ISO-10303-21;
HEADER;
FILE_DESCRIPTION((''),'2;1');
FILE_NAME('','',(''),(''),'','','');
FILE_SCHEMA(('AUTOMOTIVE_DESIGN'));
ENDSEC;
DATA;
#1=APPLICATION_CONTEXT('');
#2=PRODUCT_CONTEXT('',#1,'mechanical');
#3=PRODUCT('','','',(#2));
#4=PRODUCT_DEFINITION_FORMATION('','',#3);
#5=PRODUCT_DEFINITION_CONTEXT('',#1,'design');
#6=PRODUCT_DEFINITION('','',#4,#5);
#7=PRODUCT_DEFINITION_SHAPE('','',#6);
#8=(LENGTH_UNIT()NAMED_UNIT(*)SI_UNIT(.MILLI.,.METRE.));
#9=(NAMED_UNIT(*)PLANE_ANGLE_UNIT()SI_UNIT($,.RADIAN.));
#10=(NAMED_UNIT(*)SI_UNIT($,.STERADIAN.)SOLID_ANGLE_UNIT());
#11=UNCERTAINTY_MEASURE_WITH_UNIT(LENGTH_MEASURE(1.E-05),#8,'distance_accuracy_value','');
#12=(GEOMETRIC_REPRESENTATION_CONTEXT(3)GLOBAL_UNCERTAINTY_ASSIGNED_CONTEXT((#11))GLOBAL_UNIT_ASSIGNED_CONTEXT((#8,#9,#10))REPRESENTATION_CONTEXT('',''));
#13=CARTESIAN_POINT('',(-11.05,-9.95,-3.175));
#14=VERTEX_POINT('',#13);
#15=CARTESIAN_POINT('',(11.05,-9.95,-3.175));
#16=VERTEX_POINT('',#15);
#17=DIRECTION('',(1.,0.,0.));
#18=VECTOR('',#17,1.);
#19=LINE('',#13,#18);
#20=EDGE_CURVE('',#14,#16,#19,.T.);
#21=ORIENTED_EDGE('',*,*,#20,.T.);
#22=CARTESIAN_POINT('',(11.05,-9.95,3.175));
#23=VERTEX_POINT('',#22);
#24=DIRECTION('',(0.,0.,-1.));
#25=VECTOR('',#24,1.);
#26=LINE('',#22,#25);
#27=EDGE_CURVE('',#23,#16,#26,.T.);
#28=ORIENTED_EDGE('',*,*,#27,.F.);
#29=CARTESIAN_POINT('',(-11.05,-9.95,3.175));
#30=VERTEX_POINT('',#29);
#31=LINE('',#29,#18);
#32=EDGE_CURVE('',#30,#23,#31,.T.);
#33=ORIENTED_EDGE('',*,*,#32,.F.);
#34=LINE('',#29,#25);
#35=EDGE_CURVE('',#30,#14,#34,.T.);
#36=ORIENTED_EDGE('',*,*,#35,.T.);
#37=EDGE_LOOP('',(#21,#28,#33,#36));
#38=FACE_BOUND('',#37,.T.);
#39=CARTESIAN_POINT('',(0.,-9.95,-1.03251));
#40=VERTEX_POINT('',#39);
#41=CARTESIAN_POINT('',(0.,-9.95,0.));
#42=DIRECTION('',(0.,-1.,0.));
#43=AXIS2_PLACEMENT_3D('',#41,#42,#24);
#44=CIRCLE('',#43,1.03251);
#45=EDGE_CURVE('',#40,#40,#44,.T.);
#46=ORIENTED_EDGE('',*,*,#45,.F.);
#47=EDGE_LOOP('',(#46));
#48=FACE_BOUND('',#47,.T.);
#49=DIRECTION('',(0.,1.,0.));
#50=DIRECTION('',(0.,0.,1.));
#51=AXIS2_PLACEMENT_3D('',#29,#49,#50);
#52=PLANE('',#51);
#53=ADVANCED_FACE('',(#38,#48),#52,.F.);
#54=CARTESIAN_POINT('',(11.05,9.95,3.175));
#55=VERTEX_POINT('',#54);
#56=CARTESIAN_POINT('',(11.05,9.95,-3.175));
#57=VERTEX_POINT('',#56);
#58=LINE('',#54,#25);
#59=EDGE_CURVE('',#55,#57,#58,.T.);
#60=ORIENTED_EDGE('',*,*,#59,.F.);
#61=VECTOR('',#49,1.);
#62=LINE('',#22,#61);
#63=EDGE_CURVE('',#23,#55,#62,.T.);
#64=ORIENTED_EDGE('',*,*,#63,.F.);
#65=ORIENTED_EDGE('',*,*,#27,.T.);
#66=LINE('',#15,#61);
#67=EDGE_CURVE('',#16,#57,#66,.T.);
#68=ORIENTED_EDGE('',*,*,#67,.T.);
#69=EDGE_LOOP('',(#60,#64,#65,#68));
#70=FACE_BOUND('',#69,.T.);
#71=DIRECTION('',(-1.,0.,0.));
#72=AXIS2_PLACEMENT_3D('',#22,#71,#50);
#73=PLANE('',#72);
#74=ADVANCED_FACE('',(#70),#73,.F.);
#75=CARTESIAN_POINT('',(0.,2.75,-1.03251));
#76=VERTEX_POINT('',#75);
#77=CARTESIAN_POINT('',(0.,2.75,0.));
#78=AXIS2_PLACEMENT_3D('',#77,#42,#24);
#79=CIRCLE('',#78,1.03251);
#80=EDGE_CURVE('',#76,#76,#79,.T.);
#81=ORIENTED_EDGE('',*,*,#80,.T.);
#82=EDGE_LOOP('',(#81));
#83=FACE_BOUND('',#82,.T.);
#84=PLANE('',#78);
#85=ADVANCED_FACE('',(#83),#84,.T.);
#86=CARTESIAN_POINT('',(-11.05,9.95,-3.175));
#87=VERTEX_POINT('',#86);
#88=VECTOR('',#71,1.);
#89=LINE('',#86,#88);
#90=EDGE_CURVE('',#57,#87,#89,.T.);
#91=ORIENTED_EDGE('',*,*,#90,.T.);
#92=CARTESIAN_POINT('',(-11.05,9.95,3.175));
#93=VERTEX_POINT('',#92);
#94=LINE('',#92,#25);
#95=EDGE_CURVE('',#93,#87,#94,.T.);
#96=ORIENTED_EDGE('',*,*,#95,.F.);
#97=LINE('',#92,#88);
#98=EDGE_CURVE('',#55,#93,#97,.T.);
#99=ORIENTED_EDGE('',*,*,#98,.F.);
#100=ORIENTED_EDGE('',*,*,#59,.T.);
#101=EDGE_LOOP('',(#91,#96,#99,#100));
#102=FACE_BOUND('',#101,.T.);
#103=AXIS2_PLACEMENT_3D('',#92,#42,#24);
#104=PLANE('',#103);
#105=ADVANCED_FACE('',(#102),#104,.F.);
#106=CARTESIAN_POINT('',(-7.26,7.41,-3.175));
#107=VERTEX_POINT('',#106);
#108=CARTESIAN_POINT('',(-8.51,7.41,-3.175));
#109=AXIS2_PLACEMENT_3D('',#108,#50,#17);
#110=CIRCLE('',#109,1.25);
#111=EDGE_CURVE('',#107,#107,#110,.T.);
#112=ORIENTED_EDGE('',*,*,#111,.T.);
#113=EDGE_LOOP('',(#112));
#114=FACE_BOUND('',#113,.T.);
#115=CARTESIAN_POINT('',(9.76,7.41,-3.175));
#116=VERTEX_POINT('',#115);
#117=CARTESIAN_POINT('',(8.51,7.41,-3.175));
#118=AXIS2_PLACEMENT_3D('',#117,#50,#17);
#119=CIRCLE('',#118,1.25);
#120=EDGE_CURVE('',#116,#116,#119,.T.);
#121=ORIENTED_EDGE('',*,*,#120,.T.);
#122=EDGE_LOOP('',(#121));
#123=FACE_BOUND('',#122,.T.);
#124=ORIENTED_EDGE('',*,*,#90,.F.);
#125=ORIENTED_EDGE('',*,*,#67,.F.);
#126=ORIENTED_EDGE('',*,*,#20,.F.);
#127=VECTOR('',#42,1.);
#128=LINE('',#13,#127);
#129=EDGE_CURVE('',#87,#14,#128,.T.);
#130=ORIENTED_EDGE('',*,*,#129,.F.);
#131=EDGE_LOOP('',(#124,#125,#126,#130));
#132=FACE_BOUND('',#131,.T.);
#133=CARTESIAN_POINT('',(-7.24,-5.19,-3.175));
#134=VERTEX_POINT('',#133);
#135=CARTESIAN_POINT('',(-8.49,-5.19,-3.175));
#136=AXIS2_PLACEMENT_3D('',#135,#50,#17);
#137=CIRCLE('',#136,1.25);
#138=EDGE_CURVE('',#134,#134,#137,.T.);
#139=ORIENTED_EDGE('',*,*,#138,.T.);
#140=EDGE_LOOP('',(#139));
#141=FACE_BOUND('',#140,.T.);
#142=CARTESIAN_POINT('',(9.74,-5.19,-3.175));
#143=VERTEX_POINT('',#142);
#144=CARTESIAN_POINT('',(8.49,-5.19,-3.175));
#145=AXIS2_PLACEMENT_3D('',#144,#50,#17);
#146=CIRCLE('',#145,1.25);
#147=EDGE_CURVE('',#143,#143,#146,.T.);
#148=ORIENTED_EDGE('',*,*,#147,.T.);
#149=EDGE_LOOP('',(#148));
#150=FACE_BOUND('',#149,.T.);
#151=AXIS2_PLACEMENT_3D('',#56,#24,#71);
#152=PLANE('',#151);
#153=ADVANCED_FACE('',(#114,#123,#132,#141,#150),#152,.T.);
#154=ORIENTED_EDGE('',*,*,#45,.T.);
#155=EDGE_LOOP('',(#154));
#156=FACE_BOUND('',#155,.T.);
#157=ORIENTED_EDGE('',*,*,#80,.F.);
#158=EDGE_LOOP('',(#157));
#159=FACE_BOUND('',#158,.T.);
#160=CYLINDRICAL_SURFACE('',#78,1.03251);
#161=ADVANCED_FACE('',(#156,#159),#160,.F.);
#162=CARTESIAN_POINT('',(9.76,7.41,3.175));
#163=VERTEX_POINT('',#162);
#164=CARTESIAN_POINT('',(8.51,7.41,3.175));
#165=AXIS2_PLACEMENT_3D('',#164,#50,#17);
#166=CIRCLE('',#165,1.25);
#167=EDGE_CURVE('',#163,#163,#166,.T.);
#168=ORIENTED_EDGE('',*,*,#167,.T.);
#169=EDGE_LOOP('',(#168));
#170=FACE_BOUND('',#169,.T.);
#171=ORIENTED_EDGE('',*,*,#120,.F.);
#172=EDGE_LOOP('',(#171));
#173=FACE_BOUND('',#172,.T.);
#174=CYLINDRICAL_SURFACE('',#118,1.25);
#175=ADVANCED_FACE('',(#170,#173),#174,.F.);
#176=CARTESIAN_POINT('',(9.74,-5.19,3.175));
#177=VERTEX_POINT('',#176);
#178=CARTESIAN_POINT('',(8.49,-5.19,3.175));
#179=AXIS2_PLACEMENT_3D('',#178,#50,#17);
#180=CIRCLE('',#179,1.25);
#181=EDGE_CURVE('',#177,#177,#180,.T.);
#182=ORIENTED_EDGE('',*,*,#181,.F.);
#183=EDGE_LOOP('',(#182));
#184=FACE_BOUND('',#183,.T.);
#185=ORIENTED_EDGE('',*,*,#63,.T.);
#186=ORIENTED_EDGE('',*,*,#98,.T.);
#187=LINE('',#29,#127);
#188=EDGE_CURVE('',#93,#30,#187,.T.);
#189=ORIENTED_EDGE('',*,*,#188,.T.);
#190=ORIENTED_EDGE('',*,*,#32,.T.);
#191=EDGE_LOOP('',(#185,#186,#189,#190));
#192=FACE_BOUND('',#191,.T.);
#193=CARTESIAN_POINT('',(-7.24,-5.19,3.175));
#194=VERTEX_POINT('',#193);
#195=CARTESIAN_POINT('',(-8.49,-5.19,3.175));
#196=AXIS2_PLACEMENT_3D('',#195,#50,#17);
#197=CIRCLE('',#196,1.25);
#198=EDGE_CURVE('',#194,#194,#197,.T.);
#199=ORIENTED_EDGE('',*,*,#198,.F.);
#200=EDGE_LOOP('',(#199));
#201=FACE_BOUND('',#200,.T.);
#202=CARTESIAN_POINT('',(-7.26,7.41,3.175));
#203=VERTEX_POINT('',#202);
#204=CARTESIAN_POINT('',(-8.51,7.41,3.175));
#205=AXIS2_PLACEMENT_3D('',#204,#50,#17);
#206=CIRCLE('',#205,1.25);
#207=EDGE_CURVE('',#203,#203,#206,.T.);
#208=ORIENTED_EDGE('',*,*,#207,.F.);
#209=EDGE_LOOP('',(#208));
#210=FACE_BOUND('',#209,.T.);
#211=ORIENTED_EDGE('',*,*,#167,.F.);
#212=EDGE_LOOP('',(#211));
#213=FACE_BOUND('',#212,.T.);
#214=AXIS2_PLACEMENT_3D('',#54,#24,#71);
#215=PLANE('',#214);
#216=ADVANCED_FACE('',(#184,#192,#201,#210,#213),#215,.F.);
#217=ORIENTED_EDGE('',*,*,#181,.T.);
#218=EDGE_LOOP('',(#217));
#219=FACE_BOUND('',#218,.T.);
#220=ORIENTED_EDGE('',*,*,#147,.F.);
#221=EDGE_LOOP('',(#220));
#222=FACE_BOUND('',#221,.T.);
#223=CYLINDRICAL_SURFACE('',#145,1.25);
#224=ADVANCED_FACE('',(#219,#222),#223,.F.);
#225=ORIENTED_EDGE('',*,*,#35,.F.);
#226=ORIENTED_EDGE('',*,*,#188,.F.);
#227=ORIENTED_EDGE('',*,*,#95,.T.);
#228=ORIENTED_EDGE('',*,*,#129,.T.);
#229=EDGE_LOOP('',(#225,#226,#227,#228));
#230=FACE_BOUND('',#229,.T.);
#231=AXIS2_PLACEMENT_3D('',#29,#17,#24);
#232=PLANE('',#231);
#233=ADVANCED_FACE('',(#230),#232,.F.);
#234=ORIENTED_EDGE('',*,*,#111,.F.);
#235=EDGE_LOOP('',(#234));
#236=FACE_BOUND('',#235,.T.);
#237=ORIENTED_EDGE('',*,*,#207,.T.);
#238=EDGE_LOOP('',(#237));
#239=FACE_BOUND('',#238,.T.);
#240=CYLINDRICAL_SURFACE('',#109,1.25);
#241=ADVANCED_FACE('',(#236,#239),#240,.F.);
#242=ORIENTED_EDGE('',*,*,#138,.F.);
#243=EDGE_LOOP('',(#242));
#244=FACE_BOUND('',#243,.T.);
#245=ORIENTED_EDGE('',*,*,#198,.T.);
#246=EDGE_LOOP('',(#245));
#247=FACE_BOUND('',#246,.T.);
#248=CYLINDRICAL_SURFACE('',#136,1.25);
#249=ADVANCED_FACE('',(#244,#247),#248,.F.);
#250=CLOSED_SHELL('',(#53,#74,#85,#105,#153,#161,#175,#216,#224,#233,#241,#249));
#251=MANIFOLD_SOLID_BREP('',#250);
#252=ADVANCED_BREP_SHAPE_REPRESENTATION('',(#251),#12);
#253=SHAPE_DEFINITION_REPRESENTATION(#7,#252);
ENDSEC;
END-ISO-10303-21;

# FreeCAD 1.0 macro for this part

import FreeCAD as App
import Part
import Sketcher
from FreeCAD import Vector

doc = App.newDocument("Part")
params = doc.addObject("Spreadsheet::Sheet", "Params")
for row, (alias, value) in enumerate([
    ("sketch1_width", "22.1 mm"),
    ("sketch1_height", "19.9 mm"),
    ("pad1_length", "6.35 mm"),
    ("pocket1_length", "12.7 mm"),
    ("sketch3_diameter", "2.5 mm"),
], start=1):
    params.set(f"A{row}", alias)
    params.set(f"B{row}", "=" + value)
    params.setAlias(f"B{row}", alias)

body = doc.addObject("PartDesign::Body", "Body")

sketch1 = body.newObject("Sketcher::SketchObject", "Sketch")
sketch1.AttachmentSupport = (doc.getObject("XY_Plane"), [""])
sketch1.MapMode = "FlatFace"
sketch1.addGeometry([
    Part.LineSegment(Vector(-11.05, 9.95, 0), Vector(-11.05, -9.95, 0)),
    Part.LineSegment(Vector(-11.05, -9.95, 0), Vector(11.05, -9.95, 0)),
    Part.LineSegment(Vector(11.05, -9.95, 0), Vector(11.05, 9.95, 0)),
    Part.LineSegment(Vector(11.05, 9.95, 0), Vector(-11.05, 9.95, 0)),
], False)
sketch1.addConstraint([
    Sketcher.Constraint("Coincident", 0, 2, 1, 1),
    Sketcher.Constraint("Coincident", 1, 2, 2, 1),
    Sketcher.Constraint("Coincident", 2, 2, 3, 1),
    Sketcher.Constraint("Coincident", 3, 2, 0, 1),
    Sketcher.Constraint("Vertical", 0),
    Sketcher.Constraint("Horizontal", 1),
    Sketcher.Constraint("Vertical", 2),
    Sketcher.Constraint("Horizontal", 3),
    Sketcher.Constraint("Symmetric", 0, 2, 2, 2, -1, 1),
    Sketcher.Constraint("DistanceX", 1, 1, 1, 2, 22.1),
    Sketcher.Constraint("DistanceY", 0, 2, 0, 1, 19.9),
])
sketch1.setExpression("Constraints[9]", "Params.sketch1_width")
sketch1.setExpression("Constraints[10]", "Params.sketch1_height")
pad1 = body.newObject("PartDesign::Pad", "Pad")
pad1.Profile = sketch1
pad1.setExpression("Length", "Params.pad1_length")
pad1.Midplane = True

sketch2 = body.newObject("Sketcher::SketchObject", "Sketch001")
sketch2.AttachmentSupport = (doc.getObject("XZ_Plane"), [""])
sketch2.MapMode = "FlatFace"
sketch2.AttachmentOffset = App.Placement(Vector(0, 0, 9.95), App.Rotation())
sketch2.addGeometry(Part.Circle(Vector(0, 0, 0), Vector(0, 0, 1), 1.03251), False)
sketch2.addConstraint([
    Sketcher.Constraint("Coincident", 0, 3, -1, 1),
    Sketcher.Constraint("Diameter", 0, 2.06502),
])
pocket1 = body.newObject("PartDesign::Pocket", "Pocket")
pocket1.Profile = sketch2
pocket1.setExpression("Length", "Params.pocket1_length")

sketch3 = body.newObject("Sketcher::SketchObject", "Sketch002")
sketch3.AttachmentSupport = (doc.getObject("XY_Plane"), [""])
sketch3.MapMode = "FlatFace"
sketch3.AttachmentOffset = App.Placement(Vector(0, 0, 3.175), App.Rotation())
sketch3.addGeometry([
    Part.Circle(Vector(8.49, -5.19, 0), Vector(0, 0, 1), 1.25),
    Part.Circle(Vector(-8.51, 7.41, 0), Vector(0, 0, 1), 1.25),
    Part.Circle(Vector(8.51, 7.41, 0), Vector(0, 0, 1), 1.25),
    Part.Circle(Vector(-8.49, -5.19, 0), Vector(0, 0, 1), 1.25),
], False)
sketch3.addConstraint([
    Sketcher.Constraint("Equal", 0, 1),
    Sketcher.Constraint("Equal", 1, 2),
    Sketcher.Constraint("Equal", 2, 3),
    Sketcher.Constraint("Symmetric", 1, 3, 2, 3, -2),
    Sketcher.Constraint("Symmetric", 0, 3, 3, 3, -2),
    Sketcher.Constraint("Diameter", 0, 2.5),
    Sketcher.Constraint("DistanceX", 1, 3, 0, 3, 17.0),
    Sketcher.Constraint("DistanceY", 0, 3, 1, 3, 12.6),
    Sketcher.Constraint("DistanceX", -1, 1, 0, 3, 8.49),
    Sketcher.Constraint("DistanceY", 0, 3, -1, 1, 5.19),
])
sketch3.setExpression("Constraints[5]", "Params.sketch3_diameter")
pocket2 = body.newObject("PartDesign::Pocket", "Pocket001")
pocket2.Profile = sketch3
pocket2.Type = "ThroughAll"

doc.recompute()
